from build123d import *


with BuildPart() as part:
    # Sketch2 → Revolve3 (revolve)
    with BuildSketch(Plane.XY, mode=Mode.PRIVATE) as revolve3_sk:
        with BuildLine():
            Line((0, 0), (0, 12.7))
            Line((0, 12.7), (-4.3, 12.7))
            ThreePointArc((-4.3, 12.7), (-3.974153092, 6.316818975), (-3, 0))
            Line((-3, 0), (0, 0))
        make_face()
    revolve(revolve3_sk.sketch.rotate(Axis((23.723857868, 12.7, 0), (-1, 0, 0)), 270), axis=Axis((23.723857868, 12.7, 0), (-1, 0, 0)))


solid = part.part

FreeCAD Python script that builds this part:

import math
import FreeCAD as App
import Part
import Sketcher
from FreeCAD import Vector

doc = App.newDocument("Part")
body = doc.addObject("PartDesign::Body", "Body")

sketch1 = doc.addObject("Sketcher::SketchObject", "Sketch")
body.addObject(sketch1)
sketch1.AttachmentSupport = (doc.XY_Plane, [""])
sketch1.MapMode = "FlatFace"
sketch1.addGeometry(Part.LineSegment(Vector(0, 0, 0), Vector(0, 12.7, 0)), False)
sketch1.addGeometry(Part.LineSegment(Vector(0, 12.7, 0), Vector(-4.3, 12.7, 0)), False)
sketch1.addGeometry(Part.ArcOfCircle(Part.Circle(Vector(58.4, 12.7, 0), Vector(0, 0, 1), 62.7), math.radians(180), math.radians(191.69)), False)
sketch1.addGeometry(Part.LineSegment(Vector(-3, 0, 0), Vector(0, 0, 0)), False)
sketch1.addGeometry(Part.LineSegment(Vector(58.4, 12.7, 0), Vector(-4.3, 12.7, 0)), True)
sketch1.addConstraint(Sketcher.Constraint("Coincident", 0, 2, 1, 1))
sketch1.addConstraint(Sketcher.Constraint("Coincident", 1, 2, 2, 1))
sketch1.addConstraint(Sketcher.Constraint("Coincident", 2, 2, 3, 1))
sketch1.addConstraint(Sketcher.Constraint("Coincident", 3, 2, 0, 1))
sketch1.addConstraint(Sketcher.Constraint("Vertical", 0))
sketch1.addConstraint(Sketcher.Constraint("Horizontal", 1))
sketch1.addConstraint(Sketcher.Constraint("Horizontal", 3))
sketch1.addConstraint(Sketcher.Constraint("Horizontal", 4))
sketch1.addConstraint(Sketcher.Constraint("Coincident", 3, 2, -1, 1))
sketch1.addConstraint(Sketcher.Constraint("Coincident", 4, 1, 2, 3))
sketch1.addConstraint(Sketcher.Constraint("Coincident", 4, 2, 1, 2))
sketch1.addConstraint(Sketcher.Constraint("DistanceX", 3, 1, 3, 2, 3.0))
sketch1.addConstraint(Sketcher.Constraint("DistanceX", 1, 2, 1, 1, 4.3))
sketch1.addConstraint(Sketcher.Constraint("DistanceY", 0, 1, 0, 2, 12.7))
revolution = doc.addObject("PartDesign::Revolution", "Revolution")
body.addObject(revolution)
revolution.Profile = sketch1
revolution.ReferenceAxis = (sketch1, ["Axis0"])
revolution.Angle = 360

doc.recompute()
